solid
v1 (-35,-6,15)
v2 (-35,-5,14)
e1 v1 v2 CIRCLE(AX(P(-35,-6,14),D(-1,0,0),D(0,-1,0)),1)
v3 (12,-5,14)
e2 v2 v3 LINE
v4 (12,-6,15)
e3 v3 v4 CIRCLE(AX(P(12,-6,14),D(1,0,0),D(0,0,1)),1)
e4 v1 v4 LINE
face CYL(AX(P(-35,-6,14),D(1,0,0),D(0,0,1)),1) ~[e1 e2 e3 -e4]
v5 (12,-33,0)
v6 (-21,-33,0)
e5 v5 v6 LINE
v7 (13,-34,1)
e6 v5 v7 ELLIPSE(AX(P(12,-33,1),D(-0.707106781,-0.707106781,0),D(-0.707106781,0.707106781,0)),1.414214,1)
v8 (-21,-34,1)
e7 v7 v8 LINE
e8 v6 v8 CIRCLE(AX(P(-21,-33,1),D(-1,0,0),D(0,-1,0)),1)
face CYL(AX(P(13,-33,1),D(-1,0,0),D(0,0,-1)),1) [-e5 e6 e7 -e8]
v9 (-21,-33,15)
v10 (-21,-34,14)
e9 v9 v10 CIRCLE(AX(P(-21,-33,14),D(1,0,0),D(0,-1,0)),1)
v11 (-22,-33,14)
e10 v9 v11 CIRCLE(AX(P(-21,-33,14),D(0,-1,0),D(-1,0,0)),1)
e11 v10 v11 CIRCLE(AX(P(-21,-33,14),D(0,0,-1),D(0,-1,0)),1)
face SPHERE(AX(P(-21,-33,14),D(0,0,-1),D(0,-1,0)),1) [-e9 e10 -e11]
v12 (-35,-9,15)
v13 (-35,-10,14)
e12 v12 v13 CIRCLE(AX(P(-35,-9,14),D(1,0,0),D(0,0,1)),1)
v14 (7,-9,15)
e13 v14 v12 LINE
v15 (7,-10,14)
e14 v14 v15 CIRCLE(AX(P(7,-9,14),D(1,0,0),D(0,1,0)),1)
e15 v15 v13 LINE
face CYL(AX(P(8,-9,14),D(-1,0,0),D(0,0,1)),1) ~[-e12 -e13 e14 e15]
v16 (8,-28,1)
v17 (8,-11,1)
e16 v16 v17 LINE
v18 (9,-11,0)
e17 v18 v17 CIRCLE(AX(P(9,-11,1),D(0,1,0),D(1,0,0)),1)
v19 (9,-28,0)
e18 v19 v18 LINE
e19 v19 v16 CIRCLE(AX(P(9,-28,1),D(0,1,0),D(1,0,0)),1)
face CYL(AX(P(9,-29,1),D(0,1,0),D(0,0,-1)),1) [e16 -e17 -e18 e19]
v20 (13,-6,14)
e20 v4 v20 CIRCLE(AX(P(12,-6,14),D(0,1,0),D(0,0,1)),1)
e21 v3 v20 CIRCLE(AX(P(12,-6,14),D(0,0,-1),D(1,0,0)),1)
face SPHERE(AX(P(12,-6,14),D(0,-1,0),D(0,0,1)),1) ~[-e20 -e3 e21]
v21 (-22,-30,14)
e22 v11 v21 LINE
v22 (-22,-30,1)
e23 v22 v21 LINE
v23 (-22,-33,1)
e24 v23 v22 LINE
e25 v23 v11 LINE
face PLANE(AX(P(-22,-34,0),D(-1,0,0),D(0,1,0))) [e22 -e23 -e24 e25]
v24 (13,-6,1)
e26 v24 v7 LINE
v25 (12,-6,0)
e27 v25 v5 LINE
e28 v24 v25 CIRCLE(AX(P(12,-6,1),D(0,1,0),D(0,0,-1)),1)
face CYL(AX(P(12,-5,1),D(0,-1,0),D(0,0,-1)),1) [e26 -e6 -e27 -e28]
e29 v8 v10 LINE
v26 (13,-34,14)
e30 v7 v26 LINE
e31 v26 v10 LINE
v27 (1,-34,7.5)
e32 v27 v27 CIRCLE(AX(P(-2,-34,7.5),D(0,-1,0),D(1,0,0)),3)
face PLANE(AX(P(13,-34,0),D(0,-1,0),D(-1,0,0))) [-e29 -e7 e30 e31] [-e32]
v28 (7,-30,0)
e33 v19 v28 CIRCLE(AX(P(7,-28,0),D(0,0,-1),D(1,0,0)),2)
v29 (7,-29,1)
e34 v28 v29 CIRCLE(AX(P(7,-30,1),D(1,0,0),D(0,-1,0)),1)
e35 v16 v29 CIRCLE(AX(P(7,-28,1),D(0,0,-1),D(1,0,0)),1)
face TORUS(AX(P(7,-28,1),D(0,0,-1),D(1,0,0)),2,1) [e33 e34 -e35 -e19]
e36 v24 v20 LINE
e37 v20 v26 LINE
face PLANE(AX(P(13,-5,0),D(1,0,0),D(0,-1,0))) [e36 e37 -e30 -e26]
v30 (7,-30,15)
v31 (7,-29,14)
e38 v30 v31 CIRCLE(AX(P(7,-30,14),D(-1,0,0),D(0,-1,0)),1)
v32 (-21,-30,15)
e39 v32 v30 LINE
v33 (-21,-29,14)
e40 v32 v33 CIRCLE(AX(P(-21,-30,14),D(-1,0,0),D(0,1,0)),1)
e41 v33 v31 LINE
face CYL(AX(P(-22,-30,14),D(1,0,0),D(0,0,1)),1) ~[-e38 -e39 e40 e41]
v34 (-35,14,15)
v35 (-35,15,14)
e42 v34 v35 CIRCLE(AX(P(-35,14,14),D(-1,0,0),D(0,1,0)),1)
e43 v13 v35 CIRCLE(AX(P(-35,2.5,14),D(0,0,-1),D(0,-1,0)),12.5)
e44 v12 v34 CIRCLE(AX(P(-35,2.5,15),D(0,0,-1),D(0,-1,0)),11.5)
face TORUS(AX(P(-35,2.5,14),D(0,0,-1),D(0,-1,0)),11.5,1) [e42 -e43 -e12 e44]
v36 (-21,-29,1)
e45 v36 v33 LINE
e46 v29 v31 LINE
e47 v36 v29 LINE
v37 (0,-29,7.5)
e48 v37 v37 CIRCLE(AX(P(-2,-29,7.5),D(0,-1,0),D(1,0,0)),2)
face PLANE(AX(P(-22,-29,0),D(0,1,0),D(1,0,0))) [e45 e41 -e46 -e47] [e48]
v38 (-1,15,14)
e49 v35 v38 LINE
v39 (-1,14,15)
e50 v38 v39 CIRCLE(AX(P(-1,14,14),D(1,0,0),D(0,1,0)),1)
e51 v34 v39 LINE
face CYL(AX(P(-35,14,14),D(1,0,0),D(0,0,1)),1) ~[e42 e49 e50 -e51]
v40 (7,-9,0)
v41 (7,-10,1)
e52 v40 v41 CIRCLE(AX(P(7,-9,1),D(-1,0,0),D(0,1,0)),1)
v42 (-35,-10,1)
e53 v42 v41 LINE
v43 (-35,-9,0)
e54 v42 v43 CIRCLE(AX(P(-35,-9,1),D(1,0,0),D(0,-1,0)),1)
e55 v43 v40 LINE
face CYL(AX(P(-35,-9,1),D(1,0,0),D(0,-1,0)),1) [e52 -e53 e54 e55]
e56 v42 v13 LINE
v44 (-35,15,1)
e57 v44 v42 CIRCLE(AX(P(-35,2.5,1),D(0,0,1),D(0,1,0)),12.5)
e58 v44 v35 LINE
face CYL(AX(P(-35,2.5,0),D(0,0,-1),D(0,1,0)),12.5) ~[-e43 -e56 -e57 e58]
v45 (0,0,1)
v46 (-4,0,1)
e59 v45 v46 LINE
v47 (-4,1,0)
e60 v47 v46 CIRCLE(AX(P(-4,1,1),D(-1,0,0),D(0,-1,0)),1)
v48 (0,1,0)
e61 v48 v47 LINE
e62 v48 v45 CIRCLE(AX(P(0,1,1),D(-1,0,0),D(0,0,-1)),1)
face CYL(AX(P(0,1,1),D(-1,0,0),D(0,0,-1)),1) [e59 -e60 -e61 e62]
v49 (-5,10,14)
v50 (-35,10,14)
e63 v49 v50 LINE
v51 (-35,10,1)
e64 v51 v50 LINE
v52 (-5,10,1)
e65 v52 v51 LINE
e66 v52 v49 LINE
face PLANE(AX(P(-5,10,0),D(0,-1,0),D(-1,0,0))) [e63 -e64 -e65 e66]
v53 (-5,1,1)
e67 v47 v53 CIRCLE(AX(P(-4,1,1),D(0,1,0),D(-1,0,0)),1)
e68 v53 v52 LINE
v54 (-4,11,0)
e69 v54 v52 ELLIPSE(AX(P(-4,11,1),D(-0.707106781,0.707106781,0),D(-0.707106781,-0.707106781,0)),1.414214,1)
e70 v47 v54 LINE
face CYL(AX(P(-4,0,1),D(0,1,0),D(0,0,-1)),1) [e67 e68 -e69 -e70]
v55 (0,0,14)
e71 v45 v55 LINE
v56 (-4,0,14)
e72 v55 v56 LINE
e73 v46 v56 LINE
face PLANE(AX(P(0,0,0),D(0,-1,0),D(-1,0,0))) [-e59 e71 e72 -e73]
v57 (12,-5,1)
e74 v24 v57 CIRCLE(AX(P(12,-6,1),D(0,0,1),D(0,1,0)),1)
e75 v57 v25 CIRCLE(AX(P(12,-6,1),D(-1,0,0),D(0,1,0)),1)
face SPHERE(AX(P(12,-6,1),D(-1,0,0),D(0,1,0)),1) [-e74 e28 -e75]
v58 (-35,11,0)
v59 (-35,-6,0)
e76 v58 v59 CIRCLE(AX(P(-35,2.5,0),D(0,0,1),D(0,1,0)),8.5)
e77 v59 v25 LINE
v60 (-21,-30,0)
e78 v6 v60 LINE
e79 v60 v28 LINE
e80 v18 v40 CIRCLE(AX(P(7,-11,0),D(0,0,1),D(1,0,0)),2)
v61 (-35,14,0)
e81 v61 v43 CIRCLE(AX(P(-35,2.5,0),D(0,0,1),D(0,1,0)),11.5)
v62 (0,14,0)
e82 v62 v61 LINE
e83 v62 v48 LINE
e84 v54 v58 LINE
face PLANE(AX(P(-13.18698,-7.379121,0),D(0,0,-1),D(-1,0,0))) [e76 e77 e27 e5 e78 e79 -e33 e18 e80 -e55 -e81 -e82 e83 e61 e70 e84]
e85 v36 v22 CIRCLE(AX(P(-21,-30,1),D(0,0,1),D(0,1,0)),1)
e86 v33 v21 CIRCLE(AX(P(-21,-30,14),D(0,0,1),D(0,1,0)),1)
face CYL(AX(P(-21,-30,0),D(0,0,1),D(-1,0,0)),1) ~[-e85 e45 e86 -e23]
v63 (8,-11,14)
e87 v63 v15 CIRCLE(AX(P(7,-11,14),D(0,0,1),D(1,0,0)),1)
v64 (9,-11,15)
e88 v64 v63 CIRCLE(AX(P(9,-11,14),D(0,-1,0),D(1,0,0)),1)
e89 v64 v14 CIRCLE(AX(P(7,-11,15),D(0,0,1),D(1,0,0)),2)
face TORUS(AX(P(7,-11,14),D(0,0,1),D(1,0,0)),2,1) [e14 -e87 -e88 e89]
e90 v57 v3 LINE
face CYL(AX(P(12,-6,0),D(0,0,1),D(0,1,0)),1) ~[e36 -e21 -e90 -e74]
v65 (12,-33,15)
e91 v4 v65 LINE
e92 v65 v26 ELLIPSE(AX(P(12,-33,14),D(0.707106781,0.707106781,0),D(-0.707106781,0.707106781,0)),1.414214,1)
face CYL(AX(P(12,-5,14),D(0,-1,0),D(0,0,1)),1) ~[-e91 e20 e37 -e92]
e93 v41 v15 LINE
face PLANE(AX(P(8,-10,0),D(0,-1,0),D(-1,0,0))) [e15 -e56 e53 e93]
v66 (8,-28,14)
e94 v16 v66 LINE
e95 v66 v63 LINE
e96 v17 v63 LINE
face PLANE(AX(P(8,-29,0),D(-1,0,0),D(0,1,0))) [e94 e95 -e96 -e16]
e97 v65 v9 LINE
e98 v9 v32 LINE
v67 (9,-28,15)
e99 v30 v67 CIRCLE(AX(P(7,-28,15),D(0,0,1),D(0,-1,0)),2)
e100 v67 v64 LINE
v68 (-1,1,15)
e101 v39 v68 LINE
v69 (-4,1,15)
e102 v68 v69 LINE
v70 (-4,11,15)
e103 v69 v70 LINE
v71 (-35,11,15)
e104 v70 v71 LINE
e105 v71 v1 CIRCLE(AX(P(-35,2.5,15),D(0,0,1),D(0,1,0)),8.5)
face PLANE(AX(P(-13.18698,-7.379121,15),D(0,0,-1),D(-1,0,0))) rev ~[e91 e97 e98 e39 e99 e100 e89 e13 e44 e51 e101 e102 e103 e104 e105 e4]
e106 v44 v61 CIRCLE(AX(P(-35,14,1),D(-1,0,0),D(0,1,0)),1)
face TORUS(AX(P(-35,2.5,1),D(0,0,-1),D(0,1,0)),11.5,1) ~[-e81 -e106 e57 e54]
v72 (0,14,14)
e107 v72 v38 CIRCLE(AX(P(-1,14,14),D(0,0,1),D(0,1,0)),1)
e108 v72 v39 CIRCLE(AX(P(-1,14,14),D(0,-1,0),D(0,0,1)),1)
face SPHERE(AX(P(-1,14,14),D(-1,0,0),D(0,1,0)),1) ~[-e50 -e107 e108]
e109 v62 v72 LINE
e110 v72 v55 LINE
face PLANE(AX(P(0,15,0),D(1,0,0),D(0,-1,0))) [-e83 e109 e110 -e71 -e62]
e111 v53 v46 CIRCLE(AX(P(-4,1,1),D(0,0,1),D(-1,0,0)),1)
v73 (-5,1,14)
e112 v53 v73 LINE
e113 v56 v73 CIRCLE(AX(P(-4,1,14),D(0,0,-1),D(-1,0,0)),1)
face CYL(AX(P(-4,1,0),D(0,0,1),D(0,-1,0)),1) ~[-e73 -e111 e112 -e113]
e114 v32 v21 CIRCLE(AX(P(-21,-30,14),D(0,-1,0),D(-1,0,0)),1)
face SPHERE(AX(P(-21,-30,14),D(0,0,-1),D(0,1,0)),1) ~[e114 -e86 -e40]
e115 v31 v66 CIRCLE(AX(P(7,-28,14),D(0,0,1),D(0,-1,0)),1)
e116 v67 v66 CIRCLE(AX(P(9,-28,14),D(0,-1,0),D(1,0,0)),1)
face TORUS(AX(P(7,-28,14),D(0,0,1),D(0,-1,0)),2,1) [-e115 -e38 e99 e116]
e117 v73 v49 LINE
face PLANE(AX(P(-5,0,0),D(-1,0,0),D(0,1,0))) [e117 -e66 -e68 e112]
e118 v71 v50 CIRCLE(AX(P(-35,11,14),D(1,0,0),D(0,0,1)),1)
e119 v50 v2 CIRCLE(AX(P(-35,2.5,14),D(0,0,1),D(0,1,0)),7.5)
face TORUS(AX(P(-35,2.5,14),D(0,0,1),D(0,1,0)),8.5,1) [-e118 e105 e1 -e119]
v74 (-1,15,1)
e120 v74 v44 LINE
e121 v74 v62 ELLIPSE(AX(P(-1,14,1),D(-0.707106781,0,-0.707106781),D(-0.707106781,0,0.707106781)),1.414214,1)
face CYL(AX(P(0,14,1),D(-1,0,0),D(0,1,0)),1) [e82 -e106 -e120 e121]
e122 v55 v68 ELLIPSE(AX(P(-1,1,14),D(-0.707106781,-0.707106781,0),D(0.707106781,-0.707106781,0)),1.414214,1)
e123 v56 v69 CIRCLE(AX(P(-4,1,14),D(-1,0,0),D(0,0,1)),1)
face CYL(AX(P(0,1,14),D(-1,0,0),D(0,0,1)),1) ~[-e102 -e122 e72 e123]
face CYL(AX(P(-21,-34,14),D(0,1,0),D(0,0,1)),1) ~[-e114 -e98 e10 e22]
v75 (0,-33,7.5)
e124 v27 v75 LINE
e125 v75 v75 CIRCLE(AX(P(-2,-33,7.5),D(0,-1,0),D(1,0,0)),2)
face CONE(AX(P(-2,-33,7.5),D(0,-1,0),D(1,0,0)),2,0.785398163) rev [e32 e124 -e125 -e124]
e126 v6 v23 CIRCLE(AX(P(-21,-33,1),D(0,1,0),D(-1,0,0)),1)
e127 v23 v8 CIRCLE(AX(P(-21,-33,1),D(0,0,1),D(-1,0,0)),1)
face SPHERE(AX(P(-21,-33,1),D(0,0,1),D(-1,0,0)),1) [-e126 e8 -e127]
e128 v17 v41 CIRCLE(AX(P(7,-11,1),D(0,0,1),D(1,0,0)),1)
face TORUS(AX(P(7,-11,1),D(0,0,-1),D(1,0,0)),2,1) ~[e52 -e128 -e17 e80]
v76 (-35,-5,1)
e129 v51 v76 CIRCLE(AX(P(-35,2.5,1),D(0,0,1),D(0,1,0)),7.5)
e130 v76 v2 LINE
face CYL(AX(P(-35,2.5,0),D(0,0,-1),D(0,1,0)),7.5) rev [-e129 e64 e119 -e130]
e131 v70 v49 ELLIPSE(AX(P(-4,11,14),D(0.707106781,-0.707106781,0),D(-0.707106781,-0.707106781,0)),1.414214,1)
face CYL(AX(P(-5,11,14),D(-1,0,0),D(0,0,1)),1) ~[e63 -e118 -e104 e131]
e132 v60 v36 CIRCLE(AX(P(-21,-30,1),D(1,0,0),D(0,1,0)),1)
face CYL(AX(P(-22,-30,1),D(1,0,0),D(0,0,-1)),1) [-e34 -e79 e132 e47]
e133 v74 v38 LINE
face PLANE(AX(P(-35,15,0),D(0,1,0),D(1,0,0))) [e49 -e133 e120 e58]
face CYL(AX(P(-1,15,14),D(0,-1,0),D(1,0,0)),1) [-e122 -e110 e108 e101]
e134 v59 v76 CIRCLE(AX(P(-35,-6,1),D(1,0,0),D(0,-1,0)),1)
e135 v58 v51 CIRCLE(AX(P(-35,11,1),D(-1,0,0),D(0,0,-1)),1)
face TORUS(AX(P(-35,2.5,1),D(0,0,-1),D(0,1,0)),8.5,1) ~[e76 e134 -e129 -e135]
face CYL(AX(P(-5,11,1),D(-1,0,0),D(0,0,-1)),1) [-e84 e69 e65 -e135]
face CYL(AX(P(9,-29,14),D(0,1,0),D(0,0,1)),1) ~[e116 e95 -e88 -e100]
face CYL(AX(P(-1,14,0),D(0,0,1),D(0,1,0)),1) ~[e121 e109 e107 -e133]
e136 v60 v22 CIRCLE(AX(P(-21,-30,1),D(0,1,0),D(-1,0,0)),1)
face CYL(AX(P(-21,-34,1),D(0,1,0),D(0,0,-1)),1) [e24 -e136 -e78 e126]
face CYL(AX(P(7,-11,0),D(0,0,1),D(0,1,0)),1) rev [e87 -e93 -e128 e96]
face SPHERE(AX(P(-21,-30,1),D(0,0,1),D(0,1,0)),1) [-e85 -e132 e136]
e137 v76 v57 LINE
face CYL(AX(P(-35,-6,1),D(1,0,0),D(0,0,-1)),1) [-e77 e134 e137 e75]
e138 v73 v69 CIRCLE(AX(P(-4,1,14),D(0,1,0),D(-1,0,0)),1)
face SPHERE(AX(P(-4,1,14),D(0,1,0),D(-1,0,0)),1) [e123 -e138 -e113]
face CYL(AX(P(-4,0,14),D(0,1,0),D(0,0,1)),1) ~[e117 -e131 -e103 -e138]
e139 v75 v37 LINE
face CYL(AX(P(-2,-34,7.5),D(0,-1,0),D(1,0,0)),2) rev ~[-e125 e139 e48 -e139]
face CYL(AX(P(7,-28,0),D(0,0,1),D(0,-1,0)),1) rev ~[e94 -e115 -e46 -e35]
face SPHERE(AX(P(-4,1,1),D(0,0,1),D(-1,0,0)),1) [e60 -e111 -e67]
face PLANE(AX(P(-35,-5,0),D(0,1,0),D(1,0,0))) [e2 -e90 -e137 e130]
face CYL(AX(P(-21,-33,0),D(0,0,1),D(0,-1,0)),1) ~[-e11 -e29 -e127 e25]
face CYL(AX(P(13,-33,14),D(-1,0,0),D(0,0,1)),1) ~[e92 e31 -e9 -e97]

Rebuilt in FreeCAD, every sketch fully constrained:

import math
import FreeCAD as App
import Part
import Sketcher
from FreeCAD import Vector


def edges_at(feature, points):
    """Names of the edges that pass closest to the given points."""
    edges = feature.Shape.Edges
    near = lambda p: min(range(len(edges)), key=lambda i: edges[i].distToShape(Part.Vertex(*p))[0])
    return sorted({f"Edge{near(p) + 1}" for p in points})

doc = App.newDocument("Part")
body = doc.addObject("PartDesign::Body", "Body")

# Sketch on XY plane
sketch1 = body.newObject("Sketcher::SketchObject", "Sketch")
sketch1.AttachmentSupport = (doc.getObject("XY_Plane"), [""])
sketch1.MapMode = "FlatFace"
sketch1.addGeometry(Part.LineSegment(Vector(0, 15, 0), Vector(-35, 15, 0)), False)
sketch1.addGeometry(Part.ArcOfCircle(Part.Circle(Vector(-35, 2, 0), Vector(0, 0, 1), 12), math.radians(90), math.radians(270)), False)
sketch1.addGeometry(Part.LineSegment(Vector(-35, -10, 0), Vector(8, -10, 0)), False)
sketch1.addGeometry(Part.LineSegment(Vector(8, -10, 0), Vector(8, -29, 0)), False)
sketch1.addGeometry(Part.LineSegment(Vector(8, -29, 0), Vector(-22, -29, 0)), False)
sketch1.addGeometry(Part.LineSegment(Vector(-22, -29, 0), Vector(-22, -34, 0)), False)
sketch1.addGeometry(Part.LineSegment(Vector(-22, -34, 0), Vector(13, -34, 0)), False)
sketch1.addGeometry(Part.LineSegment(Vector(13, -34, 0), Vector(13, -5, 0)), False)
sketch1.addGeometry(Part.LineSegment(Vector(13, -5, 0), Vector(-35, -5, 0)), False)
sketch1.addGeometry(Part.ArcOfCircle(Part.Circle(Vector(-35, 2, 0), Vector(0, 0, 1), 8), math.radians(90), math.radians(270)), False)
sketch1.addGeometry(Part.LineSegment(Vector(-35, 10, 0), Vector(-5, 10, 0)), False)
sketch1.addGeometry(Part.LineSegment(Vector(-5, 10, 0), Vector(-5, 0, 0)), False)
sketch1.addGeometry(Part.LineSegment(Vector(-5, 0, 0), Vector(0, 0, 0)), False)
sketch1.addGeometry(Part.LineSegment(Vector(0, 0, 0), Vector(0, 15, 0)), False)
sketch1.addConstraint(Sketcher.Constraint("Tangent", 0, 2, 1, 1))
sketch1.addConstraint(Sketcher.Constraint("Tangent", 1, 2, 2, 1))
sketch1.addConstraint(Sketcher.Constraint("Coincident", 2, 2, 3, 1))
sketch1.addConstraint(Sketcher.Constraint("Coincident", 3, 2, 4, 1))
sketch1.addConstraint(Sketcher.Constraint("Coincident", 4, 2, 5, 1))
sketch1.addConstraint(Sketcher.Constraint("Coincident", 5, 2, 6, 1))
sketch1.addConstraint(Sketcher.Constraint("Coincident", 6, 2, 7, 1))
sketch1.addConstraint(Sketcher.Constraint("Coincident", 7, 2, 8, 1))
sketch1.addConstraint(Sketcher.Constraint("Tangent", 8, 2, 9, 2))
sketch1.addConstraint(Sketcher.Constraint("Tangent", 9, 1, 10, 1))
sketch1.addConstraint(Sketcher.Constraint("Coincident", 10, 2, 11, 1))
sketch1.addConstraint(Sketcher.Constraint("Coincident", 11, 2, 12, 1))
sketch1.addConstraint(Sketcher.Constraint("Coincident", 12, 2, 13, 1))
sketch1.addConstraint(Sketcher.Constraint("Coincident", 13, 2, 0, 1))
sketch1.addConstraint(Sketcher.Constraint("Horizontal", 0))
sketch1.addConstraint(Sketcher.Constraint("Horizontal", 2))
sketch1.addConstraint(Sketcher.Constraint("Vertical", 3))
sketch1.addConstraint(Sketcher.Constraint("Horizontal", 4))
sketch1.addConstraint(Sketcher.Constraint("Vertical", 5))
sketch1.addConstraint(Sketcher.Constraint("Horizontal", 6))
sketch1.addConstraint(Sketcher.Constraint("Vertical", 7))
sketch1.addConstraint(Sketcher.Constraint("Horizontal", 8))
sketch1.addConstraint(Sketcher.Constraint("Horizontal", 10))
sketch1.addConstraint(Sketcher.Constraint("Vertical", 11))
sketch1.addConstraint(Sketcher.Constraint("Horizontal", 12))
sketch1.addConstraint(Sketcher.Constraint("Vertical", 13))
sketch1.addConstraint(Sketcher.Constraint("Coincident", 12, 2, -1, 1))
sketch1.addConstraint(Sketcher.Constraint("Coincident", 9, 3, 1, 3))
sketch1.addConstraint(Sketcher.Constraint("Equal", 0, 6))
sketch1.addConstraint(Sketcher.Constraint("Equal", 4, 10))
sketch1.addConstraint(Sketcher.Constraint("Equal", 12, 5))
sketch1.addConstraint(Sketcher.Constraint("Radius", 1, 12.5))
sketch1.addConstraint(Sketcher.Constraint("Radius", 9, 7.5))
sketch1.addConstraint(Sketcher.Constraint("DistanceX", 0, 2, 0, 1, 35.0))
sketch1.addConstraint(Sketcher.Constraint("DistanceX", 2, 1, 2, 2, 43.0))
sketch1.addConstraint(Sketcher.Constraint("DistanceX", 4, 2, 4, 1, 30.0))
sketch1.addConstraint(Sketcher.Constraint("DistanceY", 3, 2, 3, 1, 19.0))
sketch1.addConstraint(Sketcher.Constraint("DistanceY", 11, 2, 11, 1, 10.0))
pad1 = body.newObject("PartDesign::Pad", "Pad")
pad1.Profile = sketch1
pad1.Length = 15

# Sketch on XZ plane
sketch2 = body.newObject("Sketcher::SketchObject", "Sketch001")
sketch2.AttachmentSupport = (doc.getObject("XZ_Plane"), [""])
sketch2.MapMode = "FlatFace"
sketch2.AttachmentOffset = App.Placement(Vector(0, 0, 34), App.Rotation())
sketch2.addGeometry(Part.Circle(Vector(-2, 7.5, 0), Vector(0, 0, 1), 2), False)
sketch2.addConstraint(Sketcher.Constraint("Diameter", 0, 4.0))
sketch2.addConstraint(Sketcher.Constraint("DistanceX", 0, 3, -1, 1, 2.0))
sketch2.addConstraint(Sketcher.Constraint("DistanceY", -1, 1, 0, 3, 7.5))
pocket1 = body.newObject("PartDesign::Pocket", "Pocket")
pocket1.Profile = sketch2
pocket1.Length = 5
doc.recompute()

fillet = body.newObject("PartDesign::Fillet", "Fillet")
fillet.Base = (pocket1, edges_at(pocket1, [
    (-22, -29, 7.5),
    (-22, -34, 7.5),
    (-4.5, -34, 15),
    (-7, -29, 15),
    (-7, -29, 0),
    (13, -19.5, 15),
    (8, -19.5, 15),
    (-13.5, -10, 15),
    (-47.5, 2.5, 15),
    (-42.5, 2.5, 15),
    (-47.5, 2.5, 0),
    (-17.5, 15, 0),
    (-17.5, 15, 15),
    (0, 15, 7.5),
    (0, 7.5, 15),
    (-20, 10, 15),
    (-42.5, 2.5, 0),
    (-11, -5, 0),
    (-5, 5, 15),
    (-5, 0, 7.5),
    (13, -5, 7.5),
    (-2.5, 0, 15),
    (8, -29, 7.5),
    (8, -10, 7.5),
    (8, -19.5, 0),
    (-22, -31.5, 15),
    (-22, -31.5, 0),
    (-20, 10, 0),
    (-5, 5, 0),
    (-2.5, 0, 0),
    (-13.5, -10, 0),
    (-4.5, -34, 0),
    (13, -19.5, 0),
]))
fillet.Radius = 1
doc.recompute()

chamfer = body.newObject("PartDesign::Chamfer", "Chamfer")
chamfer.Base = (fillet, edges_at(fillet, [(-4, -34, 7.5)]))
chamfer.Size = 1

doc.recompute()
